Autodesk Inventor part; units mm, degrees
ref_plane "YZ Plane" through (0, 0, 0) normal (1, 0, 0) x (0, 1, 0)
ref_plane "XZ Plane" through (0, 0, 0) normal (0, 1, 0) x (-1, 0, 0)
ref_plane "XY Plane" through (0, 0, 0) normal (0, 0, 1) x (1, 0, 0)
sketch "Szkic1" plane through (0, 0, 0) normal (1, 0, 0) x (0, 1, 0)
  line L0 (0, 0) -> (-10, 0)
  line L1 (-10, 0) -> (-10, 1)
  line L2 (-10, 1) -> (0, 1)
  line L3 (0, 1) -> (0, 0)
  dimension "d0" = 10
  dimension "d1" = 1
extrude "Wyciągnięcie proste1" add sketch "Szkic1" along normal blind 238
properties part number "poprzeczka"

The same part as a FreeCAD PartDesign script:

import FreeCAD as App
import Part
import Sketcher

V = App.Vector


def add_polygon(sketch, points):
    """Adds a closed chain of lines whose ends are joined by coincident constraints."""
    first, n = sketch.GeometryCount, len(points)
    for a, b in zip(points, points[1:] + points[:1]):
        sketch.addGeometry(Part.LineSegment(App.Vector(*a, 0), App.Vector(*b, 0)), False)
    for i in range(n):
        sketch.addConstraint(Sketcher.Constraint("Coincident", first + i, 2, first + (i + 1) % n, 1))

doc = App.newDocument("Part")
body = doc.addObject("PartDesign::Body", "Body")

# Sketch on YZ plane
sketch1 = body.newObject("Sketcher::SketchObject", "Sketch")
sketch1.AttachmentSupport = (doc.getObject("YZ_Plane"), [""])
sketch1.MapMode = "FlatFace"
add_polygon(sketch1, [(-10, 0), (0, 0), (0, 1), (-10, 1)])  # lines 0-3
sketch1.addConstraint(Sketcher.Constraint("Horizontal", 0))
sketch1.addConstraint(Sketcher.Constraint("Vertical", 1))
sketch1.addConstraint(Sketcher.Constraint("Horizontal", 2))
sketch1.addConstraint(Sketcher.Constraint("Vertical", 3))
sketch1.addConstraint(Sketcher.Constraint("Coincident", 0, 2, -1, 1))
sketch1.addConstraint(Sketcher.Constraint("DistanceX", 0, 1, 0, 2, 10.0))
sketch1.addConstraint(Sketcher.Constraint("DistanceY", 1, 1, 1, 2, 1.0))
pad1 = body.newObject("PartDesign::Pad", "Pad")
pad1.Profile = sketch1
pad1.Length = 238

doc.recompute()
